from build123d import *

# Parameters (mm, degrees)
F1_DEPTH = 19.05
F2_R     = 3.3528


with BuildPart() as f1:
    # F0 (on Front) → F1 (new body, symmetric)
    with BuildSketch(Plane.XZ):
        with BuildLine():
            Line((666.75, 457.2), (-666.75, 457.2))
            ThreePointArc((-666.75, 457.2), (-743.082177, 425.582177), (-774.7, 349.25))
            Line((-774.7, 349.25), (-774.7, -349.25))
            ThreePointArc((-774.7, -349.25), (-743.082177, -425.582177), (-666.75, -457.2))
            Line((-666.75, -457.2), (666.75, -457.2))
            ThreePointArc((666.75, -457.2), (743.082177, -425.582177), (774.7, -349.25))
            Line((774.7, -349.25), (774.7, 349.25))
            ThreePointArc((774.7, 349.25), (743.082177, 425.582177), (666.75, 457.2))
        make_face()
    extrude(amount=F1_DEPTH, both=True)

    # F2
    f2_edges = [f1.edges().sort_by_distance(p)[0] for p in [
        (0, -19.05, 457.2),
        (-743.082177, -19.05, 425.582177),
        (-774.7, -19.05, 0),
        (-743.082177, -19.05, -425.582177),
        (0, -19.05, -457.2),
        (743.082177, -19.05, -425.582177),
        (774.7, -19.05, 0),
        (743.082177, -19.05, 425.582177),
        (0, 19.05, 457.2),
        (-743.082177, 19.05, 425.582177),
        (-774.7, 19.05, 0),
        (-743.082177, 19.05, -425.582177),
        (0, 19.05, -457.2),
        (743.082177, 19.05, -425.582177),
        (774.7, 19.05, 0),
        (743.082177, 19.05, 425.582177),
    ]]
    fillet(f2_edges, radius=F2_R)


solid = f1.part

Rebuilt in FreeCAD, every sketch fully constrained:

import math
import FreeCAD as App
import Part
import Sketcher
Q = App.Units.Quantity


def edges_at(feature, points):
    """Names of the edges that pass closest to the given points."""
    edges = feature.Shape.Edges
    near = lambda p: min(range(len(edges)), key=lambda i: edges[i].distToShape(Part.Vertex(*p))[0])
    return sorted({f"Edge{near(p) + 1}" for p in points})

doc = App.newDocument("Part")
body = doc.addObject("PartDesign::Body", "Body")

# Sketch on XZ plane
sketch1 = body.newObject("Sketcher::SketchObject", "Sketch")
sketch1.AttachmentSupport = (doc.getObject("XZ_Plane"), [""])
sketch1.MapMode = "FlatFace"
sketch1.addGeometry(Part.LineSegment(App.Vector(667, 457, 0), App.Vector(-667, 457, 0)), False)
sketch1.addGeometry(Part.ArcOfCircle(Part.Circle(App.Vector(-667, 349, 0), App.Vector(0, 0, 1), 108), math.radians(90), math.radians(180)), False)
sketch1.addGeometry(Part.LineSegment(App.Vector(-775, 349, 0), App.Vector(-775, -349, 0)), False)
sketch1.addGeometry(Part.ArcOfCircle(Part.Circle(App.Vector(-667, -349, 0), App.Vector(0, 0, 1), 108), math.radians(-180), math.radians(-90)), False)
sketch1.addGeometry(Part.LineSegment(App.Vector(-667, -457, 0), App.Vector(667, -457, 0)), False)
sketch1.addGeometry(Part.ArcOfCircle(Part.Circle(App.Vector(667, -349, 0), App.Vector(0, 0, 1), 108), math.radians(-90), math.radians(0)), False)
sketch1.addGeometry(Part.LineSegment(App.Vector(775, -349, 0), App.Vector(775, 349, 0)), False)
sketch1.addGeometry(Part.ArcOfCircle(Part.Circle(App.Vector(667, 349, 0), App.Vector(0, 0, 1), 108), math.radians(0), math.radians(90)), False)
sketch1.addConstraint(Sketcher.Constraint("Tangent", 0, 2, 1, 1))
sketch1.addConstraint(Sketcher.Constraint("Tangent", 1, 2, 2, 1))
sketch1.addConstraint(Sketcher.Constraint("Tangent", 2, 2, 3, 1))
sketch1.addConstraint(Sketcher.Constraint("Tangent", 3, 2, 4, 1))
sketch1.addConstraint(Sketcher.Constraint("Tangent", 4, 2, 5, 1))
sketch1.addConstraint(Sketcher.Constraint("Tangent", 5, 2, 6, 1))
sketch1.addConstraint(Sketcher.Constraint("Tangent", 6, 2, 7, 1))
sketch1.addConstraint(Sketcher.Constraint("Tangent", 7, 2, 0, 1))
sketch1.addConstraint(Sketcher.Constraint("Horizontal", 0))
sketch1.addConstraint(Sketcher.Constraint("Vertical", 2))
sketch1.addConstraint(Sketcher.Constraint("Horizontal", 4))
sketch1.addConstraint(Sketcher.Constraint("Vertical", 6))
sketch1.addConstraint(Sketcher.Constraint("Equal", 1, 3))
sketch1.addConstraint(Sketcher.Constraint("Equal", 3, 5))
sketch1.addConstraint(Sketcher.Constraint("Equal", 5, 7))
sketch1.addConstraint(Sketcher.Constraint("Symmetric", 1, 3, 5, 3, -1, 1))
sketch1.addConstraint(Sketcher.Constraint("Radius", 1, Q("4.25 in")))
sketch1.addConstraint(Sketcher.Constraint("DistanceX", 0, 2, 0, 1, Q("52.5 in")))
sketch1.addConstraint(Sketcher.Constraint("DistanceY", 2, 2, 2, 1, Q("27.5 in")))
pad1 = body.newObject("PartDesign::Pad", "Pad")
pad1.Profile = sketch1
pad1.Length = Q("1.5 in")
pad1.Midplane = True
doc.recompute()

fillet = body.newObject("PartDesign::Fillet", "Fillet")
fillet.Base = (pad1, edges_at(pad1, [
    (0, -19.05, 457.2),
    (-743.082, -19.05, 425.582),
    (-774.7, -19.05, 0),
    (-743.082, -19.05, -425.582),
    (0, -19.05, -457.2),
    (743.082, -19.05, -425.582),
    (774.7, -19.05, 0),
    (743.082, -19.05, 425.582),
    (0, 19.05, 457.2),
    (-743.082, 19.05, 425.582),
    (-774.7, 19.05, 0),
    (-743.082, 19.05, -425.582),
    (0, 19.05, -457.2),
    (743.082, 19.05, -425.582),
    (774.7, 19.05, 0),
    (743.082, 19.05, 425.582),
]))
fillet.Radius = Q("0.132 in")

doc.recompute()
